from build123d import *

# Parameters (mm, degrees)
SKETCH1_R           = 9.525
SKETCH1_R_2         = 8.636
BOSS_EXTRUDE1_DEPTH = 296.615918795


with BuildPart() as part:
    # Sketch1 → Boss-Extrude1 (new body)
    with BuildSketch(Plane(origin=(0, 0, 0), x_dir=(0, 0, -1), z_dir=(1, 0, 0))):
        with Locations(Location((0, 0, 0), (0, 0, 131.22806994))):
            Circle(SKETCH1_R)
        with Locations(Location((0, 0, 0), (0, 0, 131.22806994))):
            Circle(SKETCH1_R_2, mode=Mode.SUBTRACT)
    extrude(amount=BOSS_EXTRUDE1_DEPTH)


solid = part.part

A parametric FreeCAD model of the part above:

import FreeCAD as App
import Part
import Sketcher
Q = App.Units.Quantity

doc = App.newDocument("Part")
body = doc.addObject("PartDesign::Body", "Body")

sketch1 = doc.addObject("Sketcher::SketchObject", "Sketch")
body.addObject(sketch1)
sketch1.AttachmentSupport = (doc.YZ_Plane, [""])
sketch1.MapMode = "FlatFace"
sketch1.addGeometry([
    Part.Circle(App.Vector(0, 0, 0), App.Vector(0, 0, 1), 9.525),
    Part.Circle(App.Vector(0, 0, 0), App.Vector(0, 0, 1), 8.636),
], False)
sketch1.addConstraint([
    Sketcher.Constraint("Coincident", 0, 3, -1, 1),
    Sketcher.Constraint("Coincident", 1, 3, -1, 1),
    Sketcher.Constraint("Diameter", 0, Q("0.75 in")),
    Sketcher.Constraint("Diameter", 1, Q("0.68 in")),
])
pad1 = doc.addObject("PartDesign::Pad", "Pad")
body.addObject(pad1)
pad1.Profile = sketch1
pad1.Length = 296.615919

doc.recompute()
